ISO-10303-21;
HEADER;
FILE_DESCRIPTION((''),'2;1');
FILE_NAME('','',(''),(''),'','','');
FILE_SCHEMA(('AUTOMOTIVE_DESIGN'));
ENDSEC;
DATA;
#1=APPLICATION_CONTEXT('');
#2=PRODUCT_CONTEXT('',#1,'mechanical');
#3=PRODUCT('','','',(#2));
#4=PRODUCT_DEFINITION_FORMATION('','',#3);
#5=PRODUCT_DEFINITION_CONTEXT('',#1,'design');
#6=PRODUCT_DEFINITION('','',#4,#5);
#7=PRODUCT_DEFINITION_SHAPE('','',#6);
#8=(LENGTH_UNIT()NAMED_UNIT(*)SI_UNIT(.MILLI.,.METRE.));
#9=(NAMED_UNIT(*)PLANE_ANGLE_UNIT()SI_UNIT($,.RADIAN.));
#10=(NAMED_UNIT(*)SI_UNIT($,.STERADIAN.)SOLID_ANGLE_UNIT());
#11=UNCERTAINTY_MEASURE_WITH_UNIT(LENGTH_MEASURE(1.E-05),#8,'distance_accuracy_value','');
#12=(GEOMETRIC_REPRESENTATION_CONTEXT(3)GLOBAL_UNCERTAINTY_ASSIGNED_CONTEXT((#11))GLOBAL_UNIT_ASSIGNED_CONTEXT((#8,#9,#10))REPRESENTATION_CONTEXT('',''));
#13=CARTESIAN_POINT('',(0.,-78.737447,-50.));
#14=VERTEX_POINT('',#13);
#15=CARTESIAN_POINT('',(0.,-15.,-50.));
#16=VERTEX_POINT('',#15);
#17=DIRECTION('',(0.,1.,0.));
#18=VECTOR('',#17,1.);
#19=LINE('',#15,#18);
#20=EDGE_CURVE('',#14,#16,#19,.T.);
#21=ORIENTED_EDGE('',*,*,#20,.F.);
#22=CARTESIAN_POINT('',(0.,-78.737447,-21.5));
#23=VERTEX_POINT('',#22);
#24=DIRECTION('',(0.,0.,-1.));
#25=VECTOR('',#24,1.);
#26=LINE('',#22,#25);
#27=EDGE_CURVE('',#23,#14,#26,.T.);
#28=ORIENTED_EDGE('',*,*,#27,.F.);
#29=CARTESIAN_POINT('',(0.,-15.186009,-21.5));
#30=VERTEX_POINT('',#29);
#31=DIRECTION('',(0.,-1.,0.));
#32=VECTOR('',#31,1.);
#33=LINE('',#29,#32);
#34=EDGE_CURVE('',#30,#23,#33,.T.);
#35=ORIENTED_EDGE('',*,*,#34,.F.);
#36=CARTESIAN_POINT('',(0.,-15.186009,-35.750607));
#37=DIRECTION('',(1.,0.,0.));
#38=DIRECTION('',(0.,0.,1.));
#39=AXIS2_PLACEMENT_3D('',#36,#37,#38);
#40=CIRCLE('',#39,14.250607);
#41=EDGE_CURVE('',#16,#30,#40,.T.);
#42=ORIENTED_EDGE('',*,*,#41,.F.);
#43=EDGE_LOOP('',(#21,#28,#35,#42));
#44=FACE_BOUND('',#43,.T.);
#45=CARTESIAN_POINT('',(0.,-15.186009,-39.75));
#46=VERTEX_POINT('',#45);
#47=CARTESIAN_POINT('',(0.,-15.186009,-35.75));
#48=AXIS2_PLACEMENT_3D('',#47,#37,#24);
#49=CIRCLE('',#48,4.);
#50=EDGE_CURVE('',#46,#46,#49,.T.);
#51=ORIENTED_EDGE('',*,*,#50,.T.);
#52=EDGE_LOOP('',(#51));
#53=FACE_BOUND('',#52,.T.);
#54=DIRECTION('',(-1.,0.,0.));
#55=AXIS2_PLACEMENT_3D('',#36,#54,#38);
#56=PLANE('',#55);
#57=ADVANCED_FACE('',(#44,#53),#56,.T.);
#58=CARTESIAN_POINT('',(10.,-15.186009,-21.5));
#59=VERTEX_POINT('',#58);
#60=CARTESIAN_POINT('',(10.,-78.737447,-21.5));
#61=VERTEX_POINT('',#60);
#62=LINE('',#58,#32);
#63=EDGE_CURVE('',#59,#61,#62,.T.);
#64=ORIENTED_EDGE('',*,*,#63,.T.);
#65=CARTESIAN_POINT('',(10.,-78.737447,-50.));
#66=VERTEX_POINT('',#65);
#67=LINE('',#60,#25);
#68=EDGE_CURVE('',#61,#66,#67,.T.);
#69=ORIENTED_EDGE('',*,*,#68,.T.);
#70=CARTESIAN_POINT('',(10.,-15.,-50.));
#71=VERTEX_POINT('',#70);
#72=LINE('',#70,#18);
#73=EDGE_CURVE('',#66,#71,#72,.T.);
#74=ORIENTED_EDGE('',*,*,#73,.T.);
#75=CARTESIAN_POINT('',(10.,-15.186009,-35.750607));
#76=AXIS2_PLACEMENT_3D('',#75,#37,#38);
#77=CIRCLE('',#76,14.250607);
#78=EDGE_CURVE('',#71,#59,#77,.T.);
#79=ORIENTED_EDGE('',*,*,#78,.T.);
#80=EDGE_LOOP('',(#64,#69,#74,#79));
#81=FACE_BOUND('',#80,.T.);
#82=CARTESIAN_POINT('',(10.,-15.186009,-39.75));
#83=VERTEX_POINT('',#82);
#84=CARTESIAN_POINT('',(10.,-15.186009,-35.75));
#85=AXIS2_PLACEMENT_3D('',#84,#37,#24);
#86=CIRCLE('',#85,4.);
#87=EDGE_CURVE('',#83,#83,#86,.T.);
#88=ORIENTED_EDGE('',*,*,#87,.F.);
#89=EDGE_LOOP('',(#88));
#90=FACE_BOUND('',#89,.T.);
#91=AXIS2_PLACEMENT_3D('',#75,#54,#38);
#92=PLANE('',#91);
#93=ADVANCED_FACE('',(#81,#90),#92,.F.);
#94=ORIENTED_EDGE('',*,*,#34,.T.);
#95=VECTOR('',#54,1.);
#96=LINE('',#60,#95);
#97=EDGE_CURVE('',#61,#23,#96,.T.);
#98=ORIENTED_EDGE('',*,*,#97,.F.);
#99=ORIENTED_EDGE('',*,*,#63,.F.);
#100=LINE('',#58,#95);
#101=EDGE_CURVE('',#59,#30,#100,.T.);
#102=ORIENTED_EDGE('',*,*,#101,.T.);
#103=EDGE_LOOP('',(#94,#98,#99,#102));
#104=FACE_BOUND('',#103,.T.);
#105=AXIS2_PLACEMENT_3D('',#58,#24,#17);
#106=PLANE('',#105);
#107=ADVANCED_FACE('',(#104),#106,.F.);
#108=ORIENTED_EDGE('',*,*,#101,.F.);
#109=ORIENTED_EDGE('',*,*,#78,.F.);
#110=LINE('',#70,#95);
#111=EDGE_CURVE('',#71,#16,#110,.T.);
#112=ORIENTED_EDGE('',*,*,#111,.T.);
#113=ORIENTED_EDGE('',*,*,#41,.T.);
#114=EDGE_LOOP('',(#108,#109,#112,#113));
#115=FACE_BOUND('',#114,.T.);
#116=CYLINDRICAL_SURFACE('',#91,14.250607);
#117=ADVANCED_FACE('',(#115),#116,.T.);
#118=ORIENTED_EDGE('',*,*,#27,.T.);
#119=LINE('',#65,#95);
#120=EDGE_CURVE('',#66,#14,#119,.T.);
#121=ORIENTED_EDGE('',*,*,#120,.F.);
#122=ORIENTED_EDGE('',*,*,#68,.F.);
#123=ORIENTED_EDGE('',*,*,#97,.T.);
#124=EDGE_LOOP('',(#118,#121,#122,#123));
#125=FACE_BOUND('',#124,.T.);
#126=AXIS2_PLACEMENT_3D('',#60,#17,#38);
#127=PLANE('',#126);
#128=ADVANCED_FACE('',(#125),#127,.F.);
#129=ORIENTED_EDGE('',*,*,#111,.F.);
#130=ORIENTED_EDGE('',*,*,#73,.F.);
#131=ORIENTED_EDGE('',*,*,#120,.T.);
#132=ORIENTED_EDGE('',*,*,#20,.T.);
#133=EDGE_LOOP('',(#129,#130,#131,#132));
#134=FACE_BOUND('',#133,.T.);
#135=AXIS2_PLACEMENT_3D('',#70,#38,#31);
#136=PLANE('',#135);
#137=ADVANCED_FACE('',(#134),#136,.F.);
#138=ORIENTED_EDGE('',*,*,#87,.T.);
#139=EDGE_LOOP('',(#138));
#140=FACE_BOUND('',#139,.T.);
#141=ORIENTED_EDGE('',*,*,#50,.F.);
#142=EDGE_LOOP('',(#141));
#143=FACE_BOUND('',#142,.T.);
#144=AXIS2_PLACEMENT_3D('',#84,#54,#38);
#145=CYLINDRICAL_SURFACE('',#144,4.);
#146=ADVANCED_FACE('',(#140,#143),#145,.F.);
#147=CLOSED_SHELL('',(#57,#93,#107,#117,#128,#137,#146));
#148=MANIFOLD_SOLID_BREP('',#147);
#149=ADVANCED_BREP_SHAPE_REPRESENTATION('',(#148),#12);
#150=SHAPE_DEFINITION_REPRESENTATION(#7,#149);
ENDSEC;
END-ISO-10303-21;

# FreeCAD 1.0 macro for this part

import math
import FreeCAD as App
import Part
import Sketcher

V = App.Vector

doc = App.newDocument("Part")
params = doc.addObject("Spreadsheet::Sheet", "Params")
for row, (alias, value) in enumerate([
    ("sketch1_diameter", "8 mm"),
    ("sketch1_height", "28.5 mm"),
    ("pad1_length", "10 mm"),
], start=1):
    params.set(f"A{row}", alias)
    params.set(f"B{row}", "=" + value)
    params.setAlias(f"B{row}", alias)

body = doc.addObject("PartDesign::Body", "Body")

sketch1 = doc.addObject("Sketcher::SketchObject", "Sketch")
body.addObject(sketch1)
sketch1.AttachmentSupport = (doc.YZ_Plane, [""])
sketch1.MapMode = "FlatFace"
sketch1.addGeometry([
    Part.LineSegment(V(-78.7, -21.5, 0), V(-78.7, -50, 0)),
    Part.LineSegment(V(-78.7, -50, 0), V(-15, -50, 0)),
    Part.ArcOfCircle(Part.Circle(V(-15.2, -35.8, 0), V(0, 0, 1), 14.3), math.radians(-89), math.radians(90)),
    Part.LineSegment(V(-15.2, -21.5, 0), V(-78.7, -21.5, 0)),
    Part.Circle(V(-15.2, -35.8, 0), V(0, 0, 1), 4),
], False)
sketch1.addConstraint([
    Sketcher.Constraint("Coincident", 0, 2, 1, 1),
    Sketcher.Constraint("Coincident", 1, 2, 2, 1),
    Sketcher.Constraint("Tangent", 2, 2, 3, 1),
    Sketcher.Constraint("Coincident", 3, 2, 0, 1),
    Sketcher.Constraint("Vertical", 0),
    Sketcher.Constraint("Horizontal", 1),
    Sketcher.Constraint("Horizontal", 3),
    Sketcher.Constraint("Vertical", 2, 3, 4, 3),
    Sketcher.Constraint("Diameter", 4, 8.0),
    Sketcher.Constraint("DistanceY", 0, 2, 0, 1, 28.5),
    Sketcher.Constraint("DistanceY", 0, 2, -1, 1, 50.0),
    Sketcher.Constraint("DistanceX", 1, 2, -1, 1, 15.0),
    Sketcher.Constraint("DistanceY", 4, 3, -1, 1, 35.75),
    Sketcher.Constraint("Radius", 2, 14.250607),
    Sketcher.Constraint("DistanceX", 3, 2, 3, 1, 63.551438),
])
sketch1.setExpression("Constraints[8]", "Params.sketch1_diameter")
sketch1.setExpression("Constraints[9]", "Params.sketch1_height")
pad1 = doc.addObject("PartDesign::Pad", "Pad")
body.addObject(pad1)
pad1.Profile = sketch1
pad1.setExpression("Length", "Params.pad1_length")

doc.recompute()
